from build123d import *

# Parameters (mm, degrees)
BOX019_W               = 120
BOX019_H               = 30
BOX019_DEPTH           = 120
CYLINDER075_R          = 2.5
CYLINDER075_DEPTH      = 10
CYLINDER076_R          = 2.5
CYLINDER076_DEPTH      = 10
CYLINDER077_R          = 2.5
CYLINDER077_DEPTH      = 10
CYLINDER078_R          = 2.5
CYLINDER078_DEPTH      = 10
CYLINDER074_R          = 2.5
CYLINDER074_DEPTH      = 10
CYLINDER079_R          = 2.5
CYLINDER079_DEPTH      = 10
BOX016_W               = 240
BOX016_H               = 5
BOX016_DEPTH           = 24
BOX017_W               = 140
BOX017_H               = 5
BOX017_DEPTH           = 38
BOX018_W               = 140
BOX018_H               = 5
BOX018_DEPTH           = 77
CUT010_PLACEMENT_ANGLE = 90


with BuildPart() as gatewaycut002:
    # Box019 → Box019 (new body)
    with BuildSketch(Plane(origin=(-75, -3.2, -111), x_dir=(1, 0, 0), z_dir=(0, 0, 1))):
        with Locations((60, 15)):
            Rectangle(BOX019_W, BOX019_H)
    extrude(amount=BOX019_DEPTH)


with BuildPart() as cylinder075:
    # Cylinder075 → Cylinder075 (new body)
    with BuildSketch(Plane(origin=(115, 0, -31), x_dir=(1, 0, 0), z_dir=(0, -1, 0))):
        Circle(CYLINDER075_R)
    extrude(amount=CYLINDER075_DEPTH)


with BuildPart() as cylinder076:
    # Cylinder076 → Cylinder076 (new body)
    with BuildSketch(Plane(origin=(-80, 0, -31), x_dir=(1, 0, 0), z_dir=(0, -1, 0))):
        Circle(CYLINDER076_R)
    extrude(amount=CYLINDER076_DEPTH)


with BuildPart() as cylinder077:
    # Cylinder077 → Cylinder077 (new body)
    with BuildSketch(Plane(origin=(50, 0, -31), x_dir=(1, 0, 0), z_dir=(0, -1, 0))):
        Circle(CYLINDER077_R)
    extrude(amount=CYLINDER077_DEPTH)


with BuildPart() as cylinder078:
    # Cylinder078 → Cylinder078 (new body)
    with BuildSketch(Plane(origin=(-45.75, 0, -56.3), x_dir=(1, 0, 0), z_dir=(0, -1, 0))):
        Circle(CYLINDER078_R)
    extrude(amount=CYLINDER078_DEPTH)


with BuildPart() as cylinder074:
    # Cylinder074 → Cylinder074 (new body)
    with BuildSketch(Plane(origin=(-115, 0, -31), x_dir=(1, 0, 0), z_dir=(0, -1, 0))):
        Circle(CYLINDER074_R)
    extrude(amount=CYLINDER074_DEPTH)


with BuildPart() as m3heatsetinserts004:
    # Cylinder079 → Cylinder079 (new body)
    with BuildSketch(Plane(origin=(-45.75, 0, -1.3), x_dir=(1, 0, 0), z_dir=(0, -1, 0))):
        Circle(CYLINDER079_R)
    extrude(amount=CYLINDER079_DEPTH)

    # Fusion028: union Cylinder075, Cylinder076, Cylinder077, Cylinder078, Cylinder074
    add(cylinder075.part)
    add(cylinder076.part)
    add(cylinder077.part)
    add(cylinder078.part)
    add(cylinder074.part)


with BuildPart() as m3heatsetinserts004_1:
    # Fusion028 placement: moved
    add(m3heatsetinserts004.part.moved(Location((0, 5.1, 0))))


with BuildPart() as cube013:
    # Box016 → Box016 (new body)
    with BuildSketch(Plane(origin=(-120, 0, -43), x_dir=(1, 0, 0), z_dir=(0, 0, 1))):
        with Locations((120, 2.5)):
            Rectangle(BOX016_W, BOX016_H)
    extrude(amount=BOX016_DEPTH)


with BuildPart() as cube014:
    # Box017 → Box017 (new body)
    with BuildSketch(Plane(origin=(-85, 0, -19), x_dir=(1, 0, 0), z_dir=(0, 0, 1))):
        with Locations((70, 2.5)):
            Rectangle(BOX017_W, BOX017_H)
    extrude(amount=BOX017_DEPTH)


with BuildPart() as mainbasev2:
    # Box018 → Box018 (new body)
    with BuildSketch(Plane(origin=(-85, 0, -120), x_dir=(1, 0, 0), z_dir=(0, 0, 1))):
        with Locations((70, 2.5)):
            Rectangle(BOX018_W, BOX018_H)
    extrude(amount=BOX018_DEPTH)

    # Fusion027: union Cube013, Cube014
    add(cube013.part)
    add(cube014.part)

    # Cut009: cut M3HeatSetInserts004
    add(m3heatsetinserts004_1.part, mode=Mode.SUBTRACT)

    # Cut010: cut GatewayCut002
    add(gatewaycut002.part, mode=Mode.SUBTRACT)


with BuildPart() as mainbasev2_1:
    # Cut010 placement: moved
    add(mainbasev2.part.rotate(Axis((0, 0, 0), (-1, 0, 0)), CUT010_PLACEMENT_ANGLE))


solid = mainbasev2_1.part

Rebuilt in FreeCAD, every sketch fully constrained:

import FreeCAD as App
import Part
import Sketcher


def add_polygon(sketch, points):
    """Adds a closed chain of lines whose ends are joined by coincident constraints."""
    first, n = sketch.GeometryCount, len(points)
    for a, b in zip(points, points[1:] + points[:1]):
        sketch.addGeometry(Part.LineSegment(App.Vector(*a, 0), App.Vector(*b, 0)), False)
    for i in range(n):
        sketch.addConstraint(Sketcher.Constraint("Coincident", first + i, 2, first + (i + 1) % n, 1))

doc = App.newDocument("Part")
body = doc.addObject("PartDesign::Body", "Body")

sketch1 = body.newObject("Sketcher::SketchObject", "Sketch")
sketch1.AttachmentSupport = (doc.getObject("XY_Plane"), [""])
sketch1.MapMode = "FlatFace"
sketch1.AttachmentOffset = App.Placement(App.Vector(0, 0, -111), App.Rotation())
add_polygon(sketch1, [(-75, 27), (-75, -3), (45, -3), (45, 27)])
sketch1.addConstraint([
    Sketcher.Constraint("Vertical", 0),
    Sketcher.Constraint("Horizontal", 1),
    Sketcher.Constraint("Vertical", 2),
    Sketcher.Constraint("Horizontal", 3),
    Sketcher.Constraint("DistanceX", 1, 1, 1, 2, 120.0),
    Sketcher.Constraint("DistanceY", 0, 2, 0, 1, 30.0),
    Sketcher.Constraint("DistanceX", 0, 2, -1, 1, 75.0),
    Sketcher.Constraint("DistanceY", 0, 2, -1, 1, 3.2),
])
pad1 = body.newObject("PartDesign::Pad", "Pad")
pad1.Profile = sketch1
pad1.Length = 120
body2 = doc.addObject("PartDesign::Body", "Body001")

sketch2 = body2.newObject("Sketcher::SketchObject", "Sketch001")
sketch2.AttachmentSupport = (doc.getObject("XZ_Plane001"), [""])
sketch2.MapMode = "FlatFace"
sketch2.addGeometry(Part.Circle(App.Vector(115, -31, 0), App.Vector(0, 0, 1), 2.5), False)
sketch2.addConstraint([
    Sketcher.Constraint("Diameter", 0, 5.0),
    Sketcher.Constraint("DistanceX", -1, 1, 0, 3, 115.0),
    Sketcher.Constraint("DistanceY", 0, 3, -1, 1, 31.0),
])
pad2 = body2.newObject("PartDesign::Pad", "Pad001")
pad2.Profile = sketch2
pad2.Length = 10
body3 = doc.addObject("PartDesign::Body", "Body002")

sketch3 = body3.newObject("Sketcher::SketchObject", "Sketch002")
sketch3.AttachmentSupport = (doc.getObject("XZ_Plane002"), [""])
sketch3.MapMode = "FlatFace"
sketch3.addGeometry(Part.Circle(App.Vector(-80, -31, 0), App.Vector(0, 0, 1), 2.5), False)
sketch3.addConstraint([
    Sketcher.Constraint("Diameter", 0, 5.0),
    Sketcher.Constraint("DistanceX", 0, 3, -1, 1, 80.0),
    Sketcher.Constraint("DistanceY", 0, 3, -1, 1, 31.0),
])
pad3 = body3.newObject("PartDesign::Pad", "Pad002")
pad3.Profile = sketch3
pad3.Length = 10
body4 = doc.addObject("PartDesign::Body", "Body003")

sketch4 = body4.newObject("Sketcher::SketchObject", "Sketch003")
sketch4.AttachmentSupport = (doc.getObject("XZ_Plane003"), [""])
sketch4.MapMode = "FlatFace"
sketch4.addGeometry(Part.Circle(App.Vector(50, -31, 0), App.Vector(0, 0, 1), 2.5), False)
sketch4.addConstraint([
    Sketcher.Constraint("Diameter", 0, 5.0),
    Sketcher.Constraint("DistanceX", -1, 1, 0, 3, 50.0),
    Sketcher.Constraint("DistanceY", 0, 3, -1, 1, 31.0),
])
pad4 = body4.newObject("PartDesign::Pad", "Pad003")
pad4.Profile = sketch4
pad4.Length = 10
body5 = doc.addObject("PartDesign::Body", "Body004")

sketch5 = body5.newObject("Sketcher::SketchObject", "Sketch004")
sketch5.AttachmentSupport = (doc.getObject("XZ_Plane004"), [""])
sketch5.MapMode = "FlatFace"
sketch5.addGeometry(Part.Circle(App.Vector(-45.8, -56.3, 0), App.Vector(0, 0, 1), 2.5), False)
sketch5.addConstraint([
    Sketcher.Constraint("Diameter", 0, 5.0),
    Sketcher.Constraint("DistanceY", 0, 3, -1, 1, 56.3),
    Sketcher.Constraint("DistanceX", 0, 3, -1, 1, 45.75),
])
pad5 = body5.newObject("PartDesign::Pad", "Pad004")
pad5.Profile = sketch5
pad5.Length = 10
body6 = doc.addObject("PartDesign::Body", "Body005")

sketch6 = body6.newObject("Sketcher::SketchObject", "Sketch005")
sketch6.AttachmentSupport = (doc.getObject("XZ_Plane005"), [""])
sketch6.MapMode = "FlatFace"
sketch6.addGeometry(Part.Circle(App.Vector(-115, -31, 0), App.Vector(0, 0, 1), 2.5), False)
sketch6.addConstraint([
    Sketcher.Constraint("Diameter", 0, 5.0),
    Sketcher.Constraint("DistanceX", 0, 3, -1, 1, 115.0),
    Sketcher.Constraint("DistanceY", 0, 3, -1, 1, 31.0),
])
pad6 = body6.newObject("PartDesign::Pad", "Pad005")
pad6.Profile = sketch6
pad6.Length = 10
body7 = doc.addObject("PartDesign::Body", "Body006")
body7.AllowCompound = True

sketch7 = body7.newObject("Sketcher::SketchObject", "Sketch006")
sketch7.AttachmentSupport = (doc.getObject("XZ_Plane006"), [""])
sketch7.MapMode = "FlatFace"
sketch7.addGeometry(Part.Circle(App.Vector(-45.8, -1.3, 0), App.Vector(0, 0, 1), 2.5), False)
sketch7.addConstraint([
    Sketcher.Constraint("Diameter", 0, 5.0),
    Sketcher.Constraint("DistanceY", 0, 3, -1, 1, 1.3),
    Sketcher.Constraint("DistanceX", 0, 3, -1, 1, 45.75),
])
pad7 = body7.newObject("PartDesign::Pad", "Pad006")
pad7.Profile = sketch7
pad7.Length = 10
doc.recompute()

boolean = body7.newObject("PartDesign::Boolean", "Boolean")
boolean.Type = "Fuse"
boolean.addObjects([body2])
doc.recompute()

boolean2 = body7.newObject("PartDesign::Boolean", "Boolean001")
boolean2.Type = "Fuse"
boolean2.addObjects([body3])
doc.recompute()

boolean3 = body7.newObject("PartDesign::Boolean", "Boolean002")
boolean3.Type = "Fuse"
boolean3.addObjects([body4])
doc.recompute()

boolean4 = body7.newObject("PartDesign::Boolean", "Boolean003")
boolean4.Type = "Fuse"
boolean4.addObjects([body5])
doc.recompute()

boolean5 = body7.newObject("PartDesign::Boolean", "Boolean004")
boolean5.Type = "Fuse"
boolean5.addObjects([body6])
body8 = doc.addObject("PartDesign::Body", "Body007")
body8.AllowCompound = True
doc.recompute()

body7.Placement = App.Placement(App.Vector(0, 5.1, 0), App.Rotation(App.Vector(0, 0, 1), 0))
boolean6 = body8.newObject("PartDesign::Boolean", "Boolean005")
boolean6.Type = "Fuse"
boolean6.addObjects([body7])
body9 = doc.addObject("PartDesign::Body", "Body008")

sketch8 = body9.newObject("Sketcher::SketchObject", "Sketch007")
sketch8.AttachmentSupport = (doc.getObject("XY_Plane008"), [""])
sketch8.MapMode = "FlatFace"
sketch8.AttachmentOffset = App.Placement(App.Vector(0, 0, -43), App.Rotation())
add_polygon(sketch8, [(-120, 5), (-120, 0), (120, 0), (120, 5)])
sketch8.addConstraint([
    Sketcher.Constraint("Vertical", 0),
    Sketcher.Constraint("Horizontal", 1),
    Sketcher.Constraint("Vertical", 2),
    Sketcher.Constraint("Horizontal", 3),
    Sketcher.Constraint("Symmetric", 0, 2, 1, 2, -1, 1),
    Sketcher.Constraint("DistanceX", 1, 1, 1, 2, 240.0),
    Sketcher.Constraint("DistanceY", 0, 2, 0, 1, 5.0),
])
pad8 = body9.newObject("PartDesign::Pad", "Pad007")
pad8.Profile = sketch8
pad8.Length = 24
body10 = doc.addObject("PartDesign::Body", "Body009")

sketch9 = body10.newObject("Sketcher::SketchObject", "Sketch008")
sketch9.AttachmentSupport = (doc.getObject("XY_Plane009"), [""])
sketch9.MapMode = "FlatFace"
sketch9.AttachmentOffset = App.Placement(App.Vector(0, 0, -19), App.Rotation())
add_polygon(sketch9, [(-85, 5), (-85, 0), (55, 0), (55, 5)])
sketch9.addConstraint([
    Sketcher.Constraint("Vertical", 0),
    Sketcher.Constraint("Horizontal", 1),
    Sketcher.Constraint("Vertical", 2),
    Sketcher.Constraint("Horizontal", 3),
    Sketcher.Constraint("PointOnObject", 0, 2, -1),
    Sketcher.Constraint("DistanceX", 1, 1, 1, 2, 140.0),
    Sketcher.Constraint("DistanceY", 0, 2, 0, 1, 5.0),
    Sketcher.Constraint("DistanceX", 0, 2, -1, 1, 85.0),
])
pad9 = body10.newObject("PartDesign::Pad", "Pad008")
pad9.Profile = sketch9
pad9.Length = 38
body11 = doc.addObject("PartDesign::Body", "Body010")

sketch10 = body11.newObject("Sketcher::SketchObject", "Sketch009")
sketch10.AttachmentSupport = (doc.getObject("XY_Plane010"), [""])
sketch10.MapMode = "FlatFace"
sketch10.AttachmentOffset = App.Placement(App.Vector(0, 0, -120), App.Rotation())
add_polygon(sketch10, [(-85, 5), (-85, 0), (55, 0), (55, 5)])
sketch10.addConstraint([
    Sketcher.Constraint("Vertical", 0),
    Sketcher.Constraint("Horizontal", 1),
    Sketcher.Constraint("Vertical", 2),
    Sketcher.Constraint("Horizontal", 3),
    Sketcher.Constraint("PointOnObject", 0, 2, -1),
    Sketcher.Constraint("DistanceX", 1, 1, 1, 2, 140.0),
    Sketcher.Constraint("DistanceY", 0, 2, 0, 1, 5.0),
    Sketcher.Constraint("DistanceX", 0, 2, -1, 1, 85.0),
])
pad10 = body11.newObject("PartDesign::Pad", "Pad009")
pad10.Profile = sketch10
pad10.Length = 77
doc.recompute()

boolean7 = body11.newObject("PartDesign::Boolean", "Boolean006")
boolean7.Type = "Fuse"
boolean7.addObjects([body9])
doc.recompute()

boolean8 = body11.newObject("PartDesign::Boolean", "Boolean007")
boolean8.Type = "Fuse"
boolean8.addObjects([body10])
doc.recompute()

boolean9 = body11.newObject("PartDesign::Boolean", "Boolean008")
boolean9.Type = "Cut"
boolean9.addObjects([body8])
doc.recompute()

boolean10 = body11.newObject("PartDesign::Boolean", "Boolean009")
boolean10.Type = "Cut"
boolean10.addObjects([body])
body12 = doc.addObject("PartDesign::Body", "Body011")
doc.recompute()

body11.Placement = App.Placement(App.Vector(0, 0, 0), App.Rotation(App.Vector(-1, 0, 0), 90))
boolean11 = body12.newObject("PartDesign::Boolean", "Boolean010")
boolean11.Type = "Fuse"
boolean11.addObjects([body11])

doc.recompute()
